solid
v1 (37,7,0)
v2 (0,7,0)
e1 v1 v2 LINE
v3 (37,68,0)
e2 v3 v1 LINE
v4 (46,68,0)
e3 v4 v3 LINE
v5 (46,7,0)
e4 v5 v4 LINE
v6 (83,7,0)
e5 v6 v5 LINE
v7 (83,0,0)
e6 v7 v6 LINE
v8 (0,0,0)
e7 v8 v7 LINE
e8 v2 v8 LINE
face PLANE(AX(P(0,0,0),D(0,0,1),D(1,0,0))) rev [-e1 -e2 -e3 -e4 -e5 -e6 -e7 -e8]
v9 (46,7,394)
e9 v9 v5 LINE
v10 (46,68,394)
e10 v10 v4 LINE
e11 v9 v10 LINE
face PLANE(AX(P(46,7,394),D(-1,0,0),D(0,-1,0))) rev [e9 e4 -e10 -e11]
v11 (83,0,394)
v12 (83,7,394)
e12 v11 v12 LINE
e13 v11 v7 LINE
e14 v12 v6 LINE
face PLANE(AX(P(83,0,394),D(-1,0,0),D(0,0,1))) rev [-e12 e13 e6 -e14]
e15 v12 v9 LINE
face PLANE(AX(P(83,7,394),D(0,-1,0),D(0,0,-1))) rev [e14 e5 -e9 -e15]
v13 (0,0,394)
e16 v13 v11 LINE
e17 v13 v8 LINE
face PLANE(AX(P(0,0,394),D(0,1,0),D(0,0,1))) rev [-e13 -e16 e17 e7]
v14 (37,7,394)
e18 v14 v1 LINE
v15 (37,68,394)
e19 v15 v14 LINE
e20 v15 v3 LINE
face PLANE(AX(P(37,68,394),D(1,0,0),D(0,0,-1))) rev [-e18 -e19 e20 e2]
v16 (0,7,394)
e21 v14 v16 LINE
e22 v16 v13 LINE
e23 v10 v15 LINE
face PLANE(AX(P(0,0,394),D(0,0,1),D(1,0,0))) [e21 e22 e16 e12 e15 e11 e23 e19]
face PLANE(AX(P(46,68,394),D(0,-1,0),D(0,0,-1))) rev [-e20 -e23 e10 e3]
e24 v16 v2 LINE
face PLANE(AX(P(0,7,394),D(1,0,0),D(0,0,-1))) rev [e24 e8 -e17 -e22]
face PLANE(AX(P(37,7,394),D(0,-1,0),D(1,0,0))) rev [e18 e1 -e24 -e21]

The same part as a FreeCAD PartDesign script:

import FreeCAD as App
import Part
import Sketcher
Q = App.Units.Quantity

doc = App.newDocument("Part")
body = doc.addObject("PartDesign::Body", "Body")

# Sketch on XY plane
sketch1 = body.newObject("Sketcher::SketchObject", "Sketch")
sketch1.AttachmentSupport = (doc.getObject("XY_Plane"), [""])
sketch1.MapMode = "FlatFace"
sketch1.addGeometry([
    Part.LineSegment(App.Vector(0, 0, 0), App.Vector(83, 0, 0)),  # 0
    Part.LineSegment(App.Vector(83, 0, 0), App.Vector(83, 7, 0)),  # 1
    Part.LineSegment(App.Vector(83, 7, 0), App.Vector(46, 7, 0)),  # 2
    Part.LineSegment(App.Vector(46, 7, 0), App.Vector(46, 68, 0)),  # 3
    Part.LineSegment(App.Vector(46, 68, 0), App.Vector(37, 68, 0)),  # 4
    Part.LineSegment(App.Vector(37, 68, 0), App.Vector(37, 7, 0)),  # 5
    Part.LineSegment(App.Vector(37, 7, 0), App.Vector(0, 7, 0)),  # 6
    Part.LineSegment(App.Vector(0, 7, 0), App.Vector(0, 0, 0)),  # 7
], False)
sketch1.addConstraint([
    Sketcher.Constraint("Coincident", 0, 2, 1, 1),
    Sketcher.Constraint("Coincident", 1, 2, 2, 1),
    Sketcher.Constraint("Coincident", 2, 2, 3, 1),
    Sketcher.Constraint("Coincident", 3, 2, 4, 1),
    Sketcher.Constraint("Coincident", 4, 2, 5, 1),
    Sketcher.Constraint("Coincident", 5, 2, 6, 1),
    Sketcher.Constraint("Coincident", 6, 2, 7, 1),
    Sketcher.Constraint("Coincident", 7, 2, 0, 1),
    Sketcher.Constraint("Horizontal", 0),
    Sketcher.Constraint("Vertical", 1),
    Sketcher.Constraint("Horizontal", 2),
    Sketcher.Constraint("Vertical", 3),
    Sketcher.Constraint("Horizontal", 4),
    Sketcher.Constraint("Vertical", 5),
    Sketcher.Constraint("Horizontal", 6),
    Sketcher.Constraint("Vertical", 7),
    Sketcher.Constraint("Coincident", 7, 2, -1, 1),
    Sketcher.Constraint("Horizontal", 2, 2, 5, 2),
    Sketcher.Constraint("Equal", 2, 6),
    Sketcher.Constraint("DistanceX", 0, 1, 0, 2, Q("83 mm")),
    Sketcher.Constraint("DistanceX", 2, 2, 2, 1, Q("37 mm")),
    Sketcher.Constraint("DistanceY", 1, 1, 1, 2, Q("7 mm")),
    Sketcher.Constraint("DistanceY", 3, 1, 3, 2, Q("61 mm")),
])
pad1 = body.newObject("PartDesign::Pad", "Pad")
pad1.Profile = sketch1
pad1.Length = 394

doc.recompute()
